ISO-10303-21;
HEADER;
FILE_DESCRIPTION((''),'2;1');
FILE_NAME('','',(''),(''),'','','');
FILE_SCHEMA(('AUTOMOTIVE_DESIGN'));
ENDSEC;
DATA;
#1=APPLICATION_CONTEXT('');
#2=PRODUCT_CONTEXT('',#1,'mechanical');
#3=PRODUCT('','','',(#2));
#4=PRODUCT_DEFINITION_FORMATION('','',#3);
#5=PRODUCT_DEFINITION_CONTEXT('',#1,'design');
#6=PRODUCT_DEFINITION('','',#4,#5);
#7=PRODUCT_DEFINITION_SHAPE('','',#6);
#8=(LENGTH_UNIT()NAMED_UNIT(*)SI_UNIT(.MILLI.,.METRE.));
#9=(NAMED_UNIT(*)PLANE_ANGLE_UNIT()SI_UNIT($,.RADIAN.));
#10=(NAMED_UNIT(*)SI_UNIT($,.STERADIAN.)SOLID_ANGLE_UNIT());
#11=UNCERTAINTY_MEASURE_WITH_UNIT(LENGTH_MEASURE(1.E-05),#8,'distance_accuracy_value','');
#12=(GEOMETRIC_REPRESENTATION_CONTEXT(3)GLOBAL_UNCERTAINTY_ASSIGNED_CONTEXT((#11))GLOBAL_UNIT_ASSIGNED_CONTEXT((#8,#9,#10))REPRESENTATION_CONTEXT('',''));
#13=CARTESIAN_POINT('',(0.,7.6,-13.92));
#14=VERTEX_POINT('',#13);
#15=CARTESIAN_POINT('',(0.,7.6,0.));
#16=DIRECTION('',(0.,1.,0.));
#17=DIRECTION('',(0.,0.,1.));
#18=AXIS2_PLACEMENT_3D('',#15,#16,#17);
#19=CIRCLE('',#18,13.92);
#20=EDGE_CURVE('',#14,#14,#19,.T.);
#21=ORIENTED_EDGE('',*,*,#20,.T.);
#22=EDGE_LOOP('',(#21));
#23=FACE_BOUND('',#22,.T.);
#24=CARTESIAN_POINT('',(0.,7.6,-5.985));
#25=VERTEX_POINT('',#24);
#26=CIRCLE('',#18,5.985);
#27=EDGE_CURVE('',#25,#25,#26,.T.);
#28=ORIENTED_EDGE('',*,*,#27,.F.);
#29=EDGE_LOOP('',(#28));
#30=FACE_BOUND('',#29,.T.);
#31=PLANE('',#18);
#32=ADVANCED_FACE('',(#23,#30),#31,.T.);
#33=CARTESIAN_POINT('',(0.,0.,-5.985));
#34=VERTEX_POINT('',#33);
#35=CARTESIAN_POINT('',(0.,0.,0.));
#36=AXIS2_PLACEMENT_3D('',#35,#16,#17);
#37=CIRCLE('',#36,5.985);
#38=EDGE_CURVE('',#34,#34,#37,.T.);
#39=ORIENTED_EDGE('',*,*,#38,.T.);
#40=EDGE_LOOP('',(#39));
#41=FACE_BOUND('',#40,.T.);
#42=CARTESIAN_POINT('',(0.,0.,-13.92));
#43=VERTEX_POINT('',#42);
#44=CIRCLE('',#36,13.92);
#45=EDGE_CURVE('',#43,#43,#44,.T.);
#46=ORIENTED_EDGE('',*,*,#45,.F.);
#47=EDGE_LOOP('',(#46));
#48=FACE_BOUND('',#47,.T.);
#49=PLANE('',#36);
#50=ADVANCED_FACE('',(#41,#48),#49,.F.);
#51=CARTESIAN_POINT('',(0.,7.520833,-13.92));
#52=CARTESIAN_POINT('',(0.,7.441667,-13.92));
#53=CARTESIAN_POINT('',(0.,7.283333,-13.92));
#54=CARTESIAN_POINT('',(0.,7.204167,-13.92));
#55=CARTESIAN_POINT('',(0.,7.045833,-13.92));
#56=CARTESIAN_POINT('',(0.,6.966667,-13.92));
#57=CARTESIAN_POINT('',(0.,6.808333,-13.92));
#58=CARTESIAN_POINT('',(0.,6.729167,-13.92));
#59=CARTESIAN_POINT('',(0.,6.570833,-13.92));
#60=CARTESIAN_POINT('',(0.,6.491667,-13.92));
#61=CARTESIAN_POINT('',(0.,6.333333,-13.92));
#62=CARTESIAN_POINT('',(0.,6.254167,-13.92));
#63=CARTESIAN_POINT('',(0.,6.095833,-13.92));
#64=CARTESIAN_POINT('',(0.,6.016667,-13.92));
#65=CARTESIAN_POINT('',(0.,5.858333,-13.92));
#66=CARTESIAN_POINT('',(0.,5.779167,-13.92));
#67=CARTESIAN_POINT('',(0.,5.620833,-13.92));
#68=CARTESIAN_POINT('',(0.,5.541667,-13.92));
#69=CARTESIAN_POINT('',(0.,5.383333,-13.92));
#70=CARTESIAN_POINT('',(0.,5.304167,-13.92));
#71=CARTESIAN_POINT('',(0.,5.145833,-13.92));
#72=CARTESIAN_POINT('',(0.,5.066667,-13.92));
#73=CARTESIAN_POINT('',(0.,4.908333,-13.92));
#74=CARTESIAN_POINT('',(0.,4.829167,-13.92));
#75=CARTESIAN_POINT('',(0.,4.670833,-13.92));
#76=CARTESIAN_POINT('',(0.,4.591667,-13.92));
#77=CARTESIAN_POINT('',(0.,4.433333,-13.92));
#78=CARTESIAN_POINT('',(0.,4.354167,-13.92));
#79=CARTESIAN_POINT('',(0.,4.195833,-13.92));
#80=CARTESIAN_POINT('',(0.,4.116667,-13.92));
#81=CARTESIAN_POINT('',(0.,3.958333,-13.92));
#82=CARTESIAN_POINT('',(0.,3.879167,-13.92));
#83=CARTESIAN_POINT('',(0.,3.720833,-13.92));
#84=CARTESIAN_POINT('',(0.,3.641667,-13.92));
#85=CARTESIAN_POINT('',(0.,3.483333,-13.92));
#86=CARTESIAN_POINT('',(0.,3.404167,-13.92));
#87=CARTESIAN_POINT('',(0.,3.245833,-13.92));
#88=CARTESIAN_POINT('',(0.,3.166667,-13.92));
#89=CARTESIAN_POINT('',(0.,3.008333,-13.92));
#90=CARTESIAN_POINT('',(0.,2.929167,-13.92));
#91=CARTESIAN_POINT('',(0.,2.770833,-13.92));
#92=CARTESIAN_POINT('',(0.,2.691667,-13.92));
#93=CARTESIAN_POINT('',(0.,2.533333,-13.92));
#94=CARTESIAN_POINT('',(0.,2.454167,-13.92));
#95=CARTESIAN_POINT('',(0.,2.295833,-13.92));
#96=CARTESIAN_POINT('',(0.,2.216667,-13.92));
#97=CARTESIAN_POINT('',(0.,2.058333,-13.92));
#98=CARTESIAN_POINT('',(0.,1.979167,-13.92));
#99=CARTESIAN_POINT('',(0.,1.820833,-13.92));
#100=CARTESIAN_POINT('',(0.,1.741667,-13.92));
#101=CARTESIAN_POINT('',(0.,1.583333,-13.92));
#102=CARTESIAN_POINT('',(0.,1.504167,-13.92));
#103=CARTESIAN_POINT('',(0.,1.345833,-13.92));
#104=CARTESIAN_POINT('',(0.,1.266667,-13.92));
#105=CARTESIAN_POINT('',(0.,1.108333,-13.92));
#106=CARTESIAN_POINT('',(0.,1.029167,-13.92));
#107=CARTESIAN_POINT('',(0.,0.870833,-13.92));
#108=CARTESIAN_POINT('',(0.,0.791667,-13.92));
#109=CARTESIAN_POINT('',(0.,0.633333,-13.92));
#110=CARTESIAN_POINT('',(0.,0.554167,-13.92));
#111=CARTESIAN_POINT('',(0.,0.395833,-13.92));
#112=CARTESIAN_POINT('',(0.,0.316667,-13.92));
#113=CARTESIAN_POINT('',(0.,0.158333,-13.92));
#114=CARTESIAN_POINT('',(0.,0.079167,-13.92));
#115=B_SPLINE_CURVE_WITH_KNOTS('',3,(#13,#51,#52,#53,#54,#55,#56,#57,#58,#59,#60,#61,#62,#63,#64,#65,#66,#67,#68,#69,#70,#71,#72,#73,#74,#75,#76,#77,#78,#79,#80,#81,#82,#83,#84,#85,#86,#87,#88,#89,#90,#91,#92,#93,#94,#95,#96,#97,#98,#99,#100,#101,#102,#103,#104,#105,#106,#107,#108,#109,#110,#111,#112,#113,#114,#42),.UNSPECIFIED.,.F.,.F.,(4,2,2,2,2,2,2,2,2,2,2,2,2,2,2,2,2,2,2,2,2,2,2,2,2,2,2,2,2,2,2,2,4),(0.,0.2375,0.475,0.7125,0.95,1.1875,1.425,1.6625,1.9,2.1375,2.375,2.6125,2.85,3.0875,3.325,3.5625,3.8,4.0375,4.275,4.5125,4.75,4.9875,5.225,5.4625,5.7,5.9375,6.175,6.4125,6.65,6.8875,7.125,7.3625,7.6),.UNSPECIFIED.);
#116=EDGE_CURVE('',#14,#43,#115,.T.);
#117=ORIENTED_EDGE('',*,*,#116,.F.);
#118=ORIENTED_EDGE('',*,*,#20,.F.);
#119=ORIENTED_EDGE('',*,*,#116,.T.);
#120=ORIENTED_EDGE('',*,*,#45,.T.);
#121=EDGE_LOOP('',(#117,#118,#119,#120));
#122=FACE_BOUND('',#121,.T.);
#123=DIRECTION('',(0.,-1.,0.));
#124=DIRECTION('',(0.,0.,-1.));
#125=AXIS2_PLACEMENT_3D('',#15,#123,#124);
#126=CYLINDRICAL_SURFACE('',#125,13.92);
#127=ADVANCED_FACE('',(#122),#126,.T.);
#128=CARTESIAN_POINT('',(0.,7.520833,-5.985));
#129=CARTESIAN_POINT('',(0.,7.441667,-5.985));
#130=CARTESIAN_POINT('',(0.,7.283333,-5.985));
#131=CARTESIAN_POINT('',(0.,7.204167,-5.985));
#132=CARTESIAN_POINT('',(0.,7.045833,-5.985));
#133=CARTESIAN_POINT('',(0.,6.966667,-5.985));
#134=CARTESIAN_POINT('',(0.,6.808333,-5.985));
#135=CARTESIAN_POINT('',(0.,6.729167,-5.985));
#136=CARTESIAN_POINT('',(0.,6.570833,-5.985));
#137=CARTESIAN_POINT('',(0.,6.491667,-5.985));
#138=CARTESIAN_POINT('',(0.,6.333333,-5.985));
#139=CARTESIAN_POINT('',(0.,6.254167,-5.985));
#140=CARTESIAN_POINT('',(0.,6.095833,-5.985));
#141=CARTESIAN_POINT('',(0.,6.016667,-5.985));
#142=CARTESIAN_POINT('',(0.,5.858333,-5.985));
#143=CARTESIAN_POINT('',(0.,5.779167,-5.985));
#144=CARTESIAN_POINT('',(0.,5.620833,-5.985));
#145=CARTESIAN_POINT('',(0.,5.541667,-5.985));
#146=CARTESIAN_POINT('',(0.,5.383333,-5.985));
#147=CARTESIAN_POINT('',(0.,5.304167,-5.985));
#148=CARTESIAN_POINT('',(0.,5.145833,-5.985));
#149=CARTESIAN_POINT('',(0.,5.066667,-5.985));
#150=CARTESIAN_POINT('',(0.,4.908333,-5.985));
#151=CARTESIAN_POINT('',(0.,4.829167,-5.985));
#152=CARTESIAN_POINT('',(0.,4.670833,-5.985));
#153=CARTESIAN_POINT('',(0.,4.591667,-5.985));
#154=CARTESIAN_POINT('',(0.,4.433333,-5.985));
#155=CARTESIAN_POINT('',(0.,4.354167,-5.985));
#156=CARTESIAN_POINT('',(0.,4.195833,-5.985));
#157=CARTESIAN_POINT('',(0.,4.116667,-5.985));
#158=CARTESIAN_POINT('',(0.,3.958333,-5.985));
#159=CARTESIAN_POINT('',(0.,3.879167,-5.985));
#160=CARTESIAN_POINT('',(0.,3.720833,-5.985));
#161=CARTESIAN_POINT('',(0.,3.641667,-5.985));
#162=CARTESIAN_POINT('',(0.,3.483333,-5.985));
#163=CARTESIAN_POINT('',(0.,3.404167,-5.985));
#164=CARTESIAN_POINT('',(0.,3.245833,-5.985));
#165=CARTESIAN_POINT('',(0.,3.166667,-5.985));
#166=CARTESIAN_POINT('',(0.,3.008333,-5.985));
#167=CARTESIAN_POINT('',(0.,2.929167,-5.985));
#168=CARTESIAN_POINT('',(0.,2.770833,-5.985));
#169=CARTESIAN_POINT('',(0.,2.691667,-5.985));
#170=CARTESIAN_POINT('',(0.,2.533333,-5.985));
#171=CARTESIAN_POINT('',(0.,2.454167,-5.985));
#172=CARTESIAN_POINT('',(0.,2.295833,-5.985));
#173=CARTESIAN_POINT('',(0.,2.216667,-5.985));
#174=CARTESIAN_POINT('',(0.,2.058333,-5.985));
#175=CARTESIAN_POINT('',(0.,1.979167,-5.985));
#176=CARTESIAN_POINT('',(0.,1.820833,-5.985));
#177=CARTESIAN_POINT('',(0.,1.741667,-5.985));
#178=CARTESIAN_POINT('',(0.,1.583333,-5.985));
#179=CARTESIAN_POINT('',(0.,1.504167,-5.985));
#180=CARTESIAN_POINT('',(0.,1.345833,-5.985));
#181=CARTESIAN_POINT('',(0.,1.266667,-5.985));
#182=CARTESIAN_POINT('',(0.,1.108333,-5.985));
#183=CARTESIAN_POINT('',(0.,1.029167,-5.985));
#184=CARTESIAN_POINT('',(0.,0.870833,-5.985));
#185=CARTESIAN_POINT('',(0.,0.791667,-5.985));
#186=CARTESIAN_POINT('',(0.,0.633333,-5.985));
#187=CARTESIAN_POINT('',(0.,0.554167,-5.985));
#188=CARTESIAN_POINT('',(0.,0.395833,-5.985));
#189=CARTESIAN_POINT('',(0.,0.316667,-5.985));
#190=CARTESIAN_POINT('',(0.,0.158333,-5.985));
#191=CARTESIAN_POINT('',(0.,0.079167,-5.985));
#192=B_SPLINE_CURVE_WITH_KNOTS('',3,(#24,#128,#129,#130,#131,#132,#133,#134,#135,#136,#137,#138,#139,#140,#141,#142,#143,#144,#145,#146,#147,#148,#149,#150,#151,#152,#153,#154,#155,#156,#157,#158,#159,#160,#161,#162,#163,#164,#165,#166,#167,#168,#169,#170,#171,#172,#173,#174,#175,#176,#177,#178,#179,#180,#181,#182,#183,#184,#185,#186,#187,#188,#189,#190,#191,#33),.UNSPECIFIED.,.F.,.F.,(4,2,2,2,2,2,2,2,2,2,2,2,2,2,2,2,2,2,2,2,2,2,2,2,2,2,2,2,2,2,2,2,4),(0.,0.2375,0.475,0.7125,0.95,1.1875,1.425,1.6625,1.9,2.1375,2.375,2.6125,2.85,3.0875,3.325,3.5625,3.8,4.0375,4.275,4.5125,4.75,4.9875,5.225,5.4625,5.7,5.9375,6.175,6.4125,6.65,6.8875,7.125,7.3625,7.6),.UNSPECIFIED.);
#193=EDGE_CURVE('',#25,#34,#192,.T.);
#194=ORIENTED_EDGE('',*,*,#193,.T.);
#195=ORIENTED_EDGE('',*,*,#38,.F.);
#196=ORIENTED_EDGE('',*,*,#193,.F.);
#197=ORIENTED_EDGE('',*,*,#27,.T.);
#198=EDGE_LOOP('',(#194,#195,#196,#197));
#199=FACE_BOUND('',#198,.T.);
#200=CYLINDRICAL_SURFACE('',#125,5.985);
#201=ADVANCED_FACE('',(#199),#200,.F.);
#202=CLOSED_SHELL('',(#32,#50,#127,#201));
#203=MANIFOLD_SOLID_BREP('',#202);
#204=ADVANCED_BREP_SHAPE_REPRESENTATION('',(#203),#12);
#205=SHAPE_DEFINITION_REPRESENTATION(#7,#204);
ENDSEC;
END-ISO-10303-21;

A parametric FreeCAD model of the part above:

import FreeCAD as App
import Part
import Sketcher

V = App.Vector
Q = App.Units.Quantity

doc = App.newDocument("Part")
body = doc.addObject("PartDesign::Body", "Body")

# Sketch on XZ plane
sketch1 = body.newObject("Sketcher::SketchObject", "Sketch")
sketch1.AttachmentSupport = (doc.getObject("XZ_Plane"), [""])
sketch1.MapMode = "FlatFace"
sketch1.addGeometry([
    Part.Circle(V(0, 0, 0), V(0, 0, 1), 14),
    Part.Circle(V(0, 0, 0), V(0, 0, 1), 6),
], False)
sketch1.addConstraint([
    Sketcher.Constraint("Coincident", 0, 3, -1, 1),
    Sketcher.Constraint("Coincident", 1, 3, -1, 1),
    Sketcher.Constraint("Diameter", 0, Q("27.84 mm")),
    Sketcher.Constraint("Diameter", 1, Q("11.97 mm")),
])
pad1 = body.newObject("PartDesign::Pad", "Pad")
pad1.Profile = sketch1
pad1.Length = 7.6
pad1.Reversed = True

doc.recompute()
